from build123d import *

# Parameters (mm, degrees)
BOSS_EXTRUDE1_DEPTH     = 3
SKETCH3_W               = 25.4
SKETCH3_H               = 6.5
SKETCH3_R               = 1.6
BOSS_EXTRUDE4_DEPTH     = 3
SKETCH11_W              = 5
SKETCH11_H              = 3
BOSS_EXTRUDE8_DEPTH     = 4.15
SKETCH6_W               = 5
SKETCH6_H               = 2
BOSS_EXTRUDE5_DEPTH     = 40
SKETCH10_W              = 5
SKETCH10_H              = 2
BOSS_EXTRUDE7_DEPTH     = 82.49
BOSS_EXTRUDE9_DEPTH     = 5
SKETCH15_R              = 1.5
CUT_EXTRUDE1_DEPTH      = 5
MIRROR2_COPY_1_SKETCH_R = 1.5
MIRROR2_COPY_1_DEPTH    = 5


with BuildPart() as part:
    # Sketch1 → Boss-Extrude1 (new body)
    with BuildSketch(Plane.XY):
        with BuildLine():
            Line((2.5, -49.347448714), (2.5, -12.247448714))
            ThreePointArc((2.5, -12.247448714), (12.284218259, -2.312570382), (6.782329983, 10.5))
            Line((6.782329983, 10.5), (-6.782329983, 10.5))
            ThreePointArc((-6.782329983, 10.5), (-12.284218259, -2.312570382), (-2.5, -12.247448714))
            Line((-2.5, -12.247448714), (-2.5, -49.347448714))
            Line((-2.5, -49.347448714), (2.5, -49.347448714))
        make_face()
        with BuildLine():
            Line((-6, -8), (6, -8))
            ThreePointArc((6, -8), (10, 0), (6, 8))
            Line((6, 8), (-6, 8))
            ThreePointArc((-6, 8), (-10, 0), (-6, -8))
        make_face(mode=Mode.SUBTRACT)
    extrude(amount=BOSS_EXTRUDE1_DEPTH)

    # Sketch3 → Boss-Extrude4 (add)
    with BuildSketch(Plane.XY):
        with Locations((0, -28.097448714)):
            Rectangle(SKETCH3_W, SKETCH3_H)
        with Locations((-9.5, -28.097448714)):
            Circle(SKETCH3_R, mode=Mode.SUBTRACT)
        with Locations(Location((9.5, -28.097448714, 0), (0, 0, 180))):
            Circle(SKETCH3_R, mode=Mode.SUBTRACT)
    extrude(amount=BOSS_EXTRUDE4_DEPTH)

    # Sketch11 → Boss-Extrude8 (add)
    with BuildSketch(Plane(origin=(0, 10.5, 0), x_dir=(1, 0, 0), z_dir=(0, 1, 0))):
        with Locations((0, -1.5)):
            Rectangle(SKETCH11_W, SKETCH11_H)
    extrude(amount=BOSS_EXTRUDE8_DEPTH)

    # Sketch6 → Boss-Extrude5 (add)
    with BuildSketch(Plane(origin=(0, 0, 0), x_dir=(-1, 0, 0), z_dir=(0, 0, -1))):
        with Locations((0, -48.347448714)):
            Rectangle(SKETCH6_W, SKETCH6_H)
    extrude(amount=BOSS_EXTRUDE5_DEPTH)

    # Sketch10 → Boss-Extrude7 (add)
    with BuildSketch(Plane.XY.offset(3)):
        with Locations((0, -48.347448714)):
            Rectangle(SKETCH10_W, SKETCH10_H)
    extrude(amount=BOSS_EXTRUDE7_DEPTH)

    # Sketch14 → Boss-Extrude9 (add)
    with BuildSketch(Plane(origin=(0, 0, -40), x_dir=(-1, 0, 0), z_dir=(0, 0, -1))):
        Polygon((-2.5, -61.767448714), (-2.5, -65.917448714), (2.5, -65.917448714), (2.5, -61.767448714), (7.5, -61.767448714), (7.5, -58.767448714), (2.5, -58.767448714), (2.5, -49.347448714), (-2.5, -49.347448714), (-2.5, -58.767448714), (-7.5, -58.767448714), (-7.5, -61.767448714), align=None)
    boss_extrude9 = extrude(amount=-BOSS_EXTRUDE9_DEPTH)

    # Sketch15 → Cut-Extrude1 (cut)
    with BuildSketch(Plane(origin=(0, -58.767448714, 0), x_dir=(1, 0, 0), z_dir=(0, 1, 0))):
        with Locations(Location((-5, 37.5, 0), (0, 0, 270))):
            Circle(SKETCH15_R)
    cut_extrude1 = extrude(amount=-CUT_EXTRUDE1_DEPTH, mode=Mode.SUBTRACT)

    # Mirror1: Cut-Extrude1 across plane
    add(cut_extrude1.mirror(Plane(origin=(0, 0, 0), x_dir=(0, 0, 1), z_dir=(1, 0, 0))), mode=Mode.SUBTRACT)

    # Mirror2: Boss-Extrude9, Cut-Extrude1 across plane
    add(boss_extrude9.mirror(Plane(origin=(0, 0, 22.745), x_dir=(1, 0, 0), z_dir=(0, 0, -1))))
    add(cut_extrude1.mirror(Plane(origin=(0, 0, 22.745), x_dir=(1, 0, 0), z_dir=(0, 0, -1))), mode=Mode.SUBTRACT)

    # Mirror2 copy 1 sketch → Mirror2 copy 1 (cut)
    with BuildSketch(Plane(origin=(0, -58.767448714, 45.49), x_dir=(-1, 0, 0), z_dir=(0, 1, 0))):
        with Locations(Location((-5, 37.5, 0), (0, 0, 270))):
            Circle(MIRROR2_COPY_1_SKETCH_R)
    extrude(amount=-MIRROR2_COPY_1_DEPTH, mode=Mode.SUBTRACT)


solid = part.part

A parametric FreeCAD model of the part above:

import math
import FreeCAD as App
import Part
import Sketcher
Q = App.Units.Quantity


def add_polygon(sketch, points):
    """Adds a closed chain of lines whose ends are joined by coincident constraints."""
    first, n = sketch.GeometryCount, len(points)
    for a, b in zip(points, points[1:] + points[:1]):
        sketch.addGeometry(Part.LineSegment(App.Vector(*a, 0), App.Vector(*b, 0)), False)
    for i in range(n):
        sketch.addConstraint(Sketcher.Constraint("Coincident", first + i, 2, first + (i + 1) % n, 1))

doc = App.newDocument("Part")
body = doc.addObject("PartDesign::Body", "Body")

# Sketch on XY plane
sketch1 = body.newObject("Sketcher::SketchObject", "Sketch")
sketch1.AttachmentSupport = (doc.getObject("XY_Plane"), [""])
sketch1.MapMode = "FlatFace"
sketch1.addGeometry(Part.LineSegment(App.Vector(2, -49, 0), App.Vector(2, -12, 0)), False)
sketch1.addGeometry(Part.ArcOfCircle(Part.Circle(App.Vector(0, 0, 0), App.Vector(0, 0, 1), 12), math.radians(-78), math.radians(57)), False)
sketch1.addGeometry(Part.LineSegment(App.Vector(7, 10, 0), App.Vector(-7, 10, 0)), False)
sketch1.addGeometry(Part.ArcOfCircle(Part.Circle(App.Vector(0, 0, 0), App.Vector(0, 0, 1), 12), math.radians(123), math.radians(258)), False)
sketch1.addGeometry(Part.LineSegment(App.Vector(-2, -12, 0), App.Vector(-2, -49, 0)), False)
sketch1.addGeometry(Part.LineSegment(App.Vector(-2, -49, 0), App.Vector(2, -49, 0)), False)
sketch1.addGeometry(Part.LineSegment(App.Vector(6, -8, 0), App.Vector(-6, -8, 0)), False)
sketch1.addGeometry(Part.ArcOfCircle(Part.Circle(App.Vector(0, 0, 0), App.Vector(0, 0, 1), 10), math.radians(127), math.radians(233)), False)
sketch1.addGeometry(Part.LineSegment(App.Vector(-6, 8, 0), App.Vector(6, 8, 0)), False)
sketch1.addGeometry(Part.ArcOfCircle(Part.Circle(App.Vector(0, 0, 0), App.Vector(0, 0, 1), 10), math.radians(-53), math.radians(53)), False)
sketch1.addConstraint(Sketcher.Constraint("Coincident", 0, 2, 1, 1))
sketch1.addConstraint(Sketcher.Constraint("Coincident", 1, 2, 2, 1))
sketch1.addConstraint(Sketcher.Constraint("Coincident", 2, 2, 3, 1))
sketch1.addConstraint(Sketcher.Constraint("Coincident", 3, 2, 4, 1))
sketch1.addConstraint(Sketcher.Constraint("Coincident", 4, 2, 5, 1))
sketch1.addConstraint(Sketcher.Constraint("Coincident", 5, 2, 0, 1))
sketch1.addConstraint(Sketcher.Constraint("Coincident", 6, 2, 7, 2))
sketch1.addConstraint(Sketcher.Constraint("Coincident", 7, 1, 8, 1))
sketch1.addConstraint(Sketcher.Constraint("Coincident", 8, 2, 9, 2))
sketch1.addConstraint(Sketcher.Constraint("Coincident", 9, 1, 6, 1))
sketch1.addConstraint(Sketcher.Constraint("Vertical", 0))
sketch1.addConstraint(Sketcher.Constraint("Horizontal", 2))
sketch1.addConstraint(Sketcher.Constraint("Vertical", 4))
sketch1.addConstraint(Sketcher.Constraint("Horizontal", 5))
sketch1.addConstraint(Sketcher.Constraint("Horizontal", 6))
sketch1.addConstraint(Sketcher.Constraint("Horizontal", 8))
sketch1.addConstraint(Sketcher.Constraint("Coincident", 1, 3, -1, 1))
sketch1.addConstraint(Sketcher.Constraint("Coincident", 3, 3, -1, 1))
sketch1.addConstraint(Sketcher.Constraint("Coincident", 7, 3, -1, 1))
sketch1.addConstraint(Sketcher.Constraint("Coincident", 9, 3, -1, 1))
sketch1.addConstraint(Sketcher.Constraint("Equal", 1, 3))
sketch1.addConstraint(Sketcher.Constraint("Equal", 7, 9))
sketch1.addConstraint(Sketcher.Constraint("Horizontal", 0, 2, 3, 2))
sketch1.addConstraint(Sketcher.Constraint("Vertical", 6, 2, 7, 1))
sketch1.addConstraint(Sketcher.Constraint("Radius", 7, Q("10 mm")))
sketch1.addConstraint(Sketcher.Constraint("Radius", 1, Q("12.5 mm")))
sketch1.addConstraint(Sketcher.Constraint("DistanceX", 5, 1, 5, 2, Q("5 mm")))
sketch1.addConstraint(Sketcher.Constraint("DistanceX", 6, 2, 6, 1, Q("12 mm")))
sketch1.addConstraint(Sketcher.Constraint("DistanceY", 0, 1, 0, 2, Q("37.1 mm")))
sketch1.addConstraint(Sketcher.Constraint("DistanceY", -1, 1, 1, 2, Q("10.5 mm")))
pad1 = body.newObject("PartDesign::Pad", "Pad")
pad1.Profile = sketch1
pad1.Length = 3

# Sketch on XY plane
sketch2 = body.newObject("Sketcher::SketchObject", "Sketch001")
sketch2.AttachmentSupport = (doc.getObject("XY_Plane"), [""])
sketch2.MapMode = "FlatFace"
add_polygon(sketch2, [(-12.7, -24.8), (-12.7, -31.3), (12.7, -31.3), (12.7, -24.8)])  # lines 0-3
sketch2.addGeometry(Part.Circle(App.Vector(-9.5, -28.1, 0), App.Vector(0, 0, 1), 1.6), False)  # 4
sketch2.addGeometry(Part.Circle(App.Vector(9.5, -28.1, 0), App.Vector(0, 0, 1), 1.6), False)  # 5
sketch2.addConstraint(Sketcher.Constraint("Vertical", 0))
sketch2.addConstraint(Sketcher.Constraint("Horizontal", 1))
sketch2.addConstraint(Sketcher.Constraint("Vertical", 2))
sketch2.addConstraint(Sketcher.Constraint("Horizontal", 3))
sketch2.addConstraint(Sketcher.Constraint("Equal", 4, 5))
sketch2.addConstraint(Sketcher.Constraint("Symmetric", 4, 3, 5, 3, -2))
sketch2.addConstraint(Sketcher.Constraint("Diameter", 4, Q("3.2 mm")))
sketch2.addConstraint(Sketcher.Constraint("DistanceX", 1, 1, 1, 2, Q("25.4 mm")))
sketch2.addConstraint(Sketcher.Constraint("DistanceY", 0, 2, 0, 1, Q("6.5 mm")))
sketch2.addConstraint(Sketcher.Constraint("DistanceX", 4, 3, 5, 3, Q("19 mm")))
sketch2.addConstraint(Sketcher.Constraint("DistanceX", 0, 2, -1, 1, Q("12.7 mm")))
sketch2.addConstraint(Sketcher.Constraint("DistanceY", 0, 2, 4, 3, Q("3.25 mm")))
sketch2.addConstraint(Sketcher.Constraint("DistanceY", 4, 3, -1, 1, Q("28.097449 mm")))
pad2 = body.newObject("PartDesign::Pad", "Pad001")
pad2.Profile = sketch2
pad2.Length = 3

# Sketch on XZ plane
sketch3 = body.newObject("Sketcher::SketchObject", "Sketch002")
sketch3.AttachmentSupport = (doc.getObject("XZ_Plane"), [""])
sketch3.MapMode = "FlatFace"
sketch3.AttachmentOffset = App.Placement(App.Vector(0, 0, -10.5), App.Rotation())
add_polygon(sketch3, [(-2.5, 0), (-2.5, 3), (2.5, 3), (2.5, 0)])  # lines 0-3
sketch3.addConstraint(Sketcher.Constraint("Vertical", 0))
sketch3.addConstraint(Sketcher.Constraint("Horizontal", 1))
sketch3.addConstraint(Sketcher.Constraint("Vertical", 2))
sketch3.addConstraint(Sketcher.Constraint("Horizontal", 3))
sketch3.addConstraint(Sketcher.Constraint("Symmetric", 2, 2, 3, 2, -1, 1))
sketch3.addConstraint(Sketcher.Constraint("DistanceX", 1, 1, 1, 2, Q("5 mm")))
sketch3.addConstraint(Sketcher.Constraint("DistanceY", 0, 1, 0, 2, Q("3 mm")))
pad3 = body.newObject("PartDesign::Pad", "Pad002")
pad3.Profile = sketch3
pad3.Length = 4.15
pad3.Reversed = True

# Sketch on XY plane
sketch4 = body.newObject("Sketcher::SketchObject", "Sketch003")
sketch4.AttachmentSupport = (doc.getObject("XY_Plane"), [""])
sketch4.MapMode = "FlatFace"
add_polygon(sketch4, [(2.5, -47.3), (2.5, -49.3), (-2.5, -49.3), (-2.5, -47.3)])  # lines 0-3
sketch4.addConstraint(Sketcher.Constraint("Vertical", 0))
sketch4.addConstraint(Sketcher.Constraint("Horizontal", 1))
sketch4.addConstraint(Sketcher.Constraint("Vertical", 2))
sketch4.addConstraint(Sketcher.Constraint("Horizontal", 3))
sketch4.addConstraint(Sketcher.Constraint("DistanceX", 1, 2, 1, 1, Q("5 mm")))
sketch4.addConstraint(Sketcher.Constraint("DistanceY", 0, 2, 0, 1, Q("2 mm")))
sketch4.addConstraint(Sketcher.Constraint("DistanceX", -1, 1, 0, 2, Q("2.5 mm")))
sketch4.addConstraint(Sketcher.Constraint("DistanceY", 0, 2, -1, 1, Q("49.347449 mm")))
pad4 = body.newObject("PartDesign::Pad", "Pad003")
pad4.Profile = sketch4
pad4.Length = 40
pad4.Reversed = True

# Sketch on XY plane
sketch5 = body.newObject("Sketcher::SketchObject", "Sketch004")
sketch5.AttachmentSupport = (doc.getObject("XY_Plane"), [""])
sketch5.MapMode = "FlatFace"
sketch5.AttachmentOffset = App.Placement(App.Vector(0, 0, 3), App.Rotation())
add_polygon(sketch5, [(-2.5, -47.3), (-2.5, -49.3), (2.5, -49.3), (2.5, -47.3)])  # lines 0-3
sketch5.addConstraint(Sketcher.Constraint("Vertical", 0))
sketch5.addConstraint(Sketcher.Constraint("Horizontal", 1))
sketch5.addConstraint(Sketcher.Constraint("Vertical", 2))
sketch5.addConstraint(Sketcher.Constraint("Horizontal", 3))
sketch5.addConstraint(Sketcher.Constraint("DistanceX", 1, 1, 1, 2, Q("5 mm")))
sketch5.addConstraint(Sketcher.Constraint("DistanceY", 0, 2, 0, 1, Q("2 mm")))
sketch5.addConstraint(Sketcher.Constraint("DistanceX", 0, 2, -1, 1, Q("2.5 mm")))
sketch5.addConstraint(Sketcher.Constraint("DistanceY", 0, 2, -1, 1, Q("49.347449 mm")))
pad5 = body.newObject("PartDesign::Pad", "Pad004")
pad5.Profile = sketch5
pad5.Length = 82.49

# Sketch on XY plane
sketch6 = body.newObject("Sketcher::SketchObject", "Sketch005")
sketch6.AttachmentSupport = (doc.getObject("XY_Plane"), [""])
sketch6.MapMode = "FlatFace"
sketch6.AttachmentOffset = App.Placement(App.Vector(0, 0, -40), App.Rotation())
add_polygon(sketch6, [(2.5, -61.8), (2.5, -65.9), (-2.5, -65.9), (-2.5, -61.8), (-7.5, -61.8), (-7.5, -58.8), (-2.5, -58.8), (-2.5, -49.3), (2.5, -49.3), (2.5, -58.8), (7.5, -58.8), (7.5, -61.8)])  # lines 0-11
sketch6.addConstraint(Sketcher.Constraint("Vertical", 0))
sketch6.addConstraint(Sketcher.Constraint("Horizontal", 1))
sketch6.addConstraint(Sketcher.Constraint("Vertical", 2))
sketch6.addConstraint(Sketcher.Constraint("Horizontal", 3))
sketch6.addConstraint(Sketcher.Constraint("Vertical", 4))
sketch6.addConstraint(Sketcher.Constraint("Horizontal", 5))
sketch6.addConstraint(Sketcher.Constraint("Vertical", 6))
sketch6.addConstraint(Sketcher.Constraint("Horizontal", 7))
sketch6.addConstraint(Sketcher.Constraint("Vertical", 8))
sketch6.addConstraint(Sketcher.Constraint("Horizontal", 9))
sketch6.addConstraint(Sketcher.Constraint("Vertical", 10))
sketch6.addConstraint(Sketcher.Constraint("Horizontal", 11))
sketch6.addConstraint(Sketcher.Constraint("Symmetric", 5, 2, 8, 2, -2))
sketch6.addConstraint(Sketcher.Constraint("Symmetric", 3, 2, 10, 2, -2))
sketch6.addConstraint(Sketcher.Constraint("Vertical", 2, 2, 5, 2))
sketch6.addConstraint(Sketcher.Constraint("Vertical", 0, 2, 7, 2))
sketch6.addConstraint(Sketcher.Constraint("Equal", 1, 3))
sketch6.addConstraint(Sketcher.Constraint("DistanceX", 1, 2, 1, 1, Q("5 mm")))
sketch6.addConstraint(Sketcher.Constraint("DistanceY", 4, 1, 4, 2, Q("3 mm")))
sketch6.addConstraint(Sketcher.Constraint("DistanceY", 0, 2, 0, 1, Q("4.15 mm")))
sketch6.addConstraint(Sketcher.Constraint("DistanceY", 6, 1, 6, 2, Q("9.42 mm")))
sketch6.addConstraint(Sketcher.Constraint("DistanceY", 0, 2, -1, 1, Q("65.917449 mm")))
pad6 = body.newObject("PartDesign::Pad", "Pad005")
pad6.Profile = sketch6
pad6.Length = 5

# Sketch on XZ plane
sketch7 = body.newObject("Sketcher::SketchObject", "Sketch006")
sketch7.AttachmentSupport = (doc.getObject("XZ_Plane"), [""])
sketch7.MapMode = "FlatFace"
sketch7.AttachmentOffset = App.Placement(App.Vector(0, 0, 58.767449), App.Rotation())
sketch7.addGeometry(Part.Circle(App.Vector(-5, -37.5, 0), App.Vector(0, 0, 1), 1.5), False)
sketch7.addConstraint(Sketcher.Constraint("Diameter", 0, Q("3 mm")))
sketch7.addConstraint(Sketcher.Constraint("DistanceX", 0, 3, -1, 1, Q("5 mm")))
sketch7.addConstraint(Sketcher.Constraint("DistanceY", 0, 3, -1, 1, Q("37.5 mm")))
pocket1 = body.newObject("PartDesign::Pocket", "Pocket")
pocket1.Profile = sketch7
pocket1.Length = 5
pocket1.Reversed = True
doc.recompute()

mirrored = body.newObject("PartDesign::Mirrored", "Mirrored")
mirrored.Originals = [pocket1]
mirrored.MirrorPlane = (doc.getObject("YZ_Plane"), [""])
body.Tip = mirrored
doc.recompute()

datumplane = body.newObject("PartDesign::Plane", "DatumPlane")
datumplane.AttachmentSupport = (doc.getObject("XY_Plane"), [""])
datumplane.MapMode = "FlatFace"
datumplane.AttachmentOffset = App.Placement(App.Vector(0, 0, 22.745), App.Rotation())
mirrored2 = body.newObject("PartDesign::Mirrored", "Mirrored001")
mirrored2.Originals = [pad6, pocket1]
mirrored2.MirrorPlane = (datumplane, [""])
body.Tip = mirrored2

# Sketch on XZ plane
sketch8 = body.newObject("Sketcher::SketchObject", "Sketch007")
sketch8.AttachmentSupport = (doc.getObject("XZ_Plane"), [""])
sketch8.MapMode = "FlatFace"
sketch8.AttachmentOffset = App.Placement(App.Vector(0, 0, 58.767449), App.Rotation())
sketch8.addGeometry(Part.Circle(App.Vector(5, 83, 0), App.Vector(0, 0, 1), 1.5), False)
sketch8.addConstraint(Sketcher.Constraint("Diameter", 0, Q("3 mm")))
sketch8.addConstraint(Sketcher.Constraint("DistanceX", -1, 1, 0, 3, Q("5 mm")))
sketch8.addConstraint(Sketcher.Constraint("DistanceY", -1, 1, 0, 3, Q("82.99 mm")))
pocket2 = body.newObject("PartDesign::Pocket", "Pocket001")
pocket2.Profile = sketch8
pocket2.Length = 5
pocket2.Reversed = True

doc.recompute()
